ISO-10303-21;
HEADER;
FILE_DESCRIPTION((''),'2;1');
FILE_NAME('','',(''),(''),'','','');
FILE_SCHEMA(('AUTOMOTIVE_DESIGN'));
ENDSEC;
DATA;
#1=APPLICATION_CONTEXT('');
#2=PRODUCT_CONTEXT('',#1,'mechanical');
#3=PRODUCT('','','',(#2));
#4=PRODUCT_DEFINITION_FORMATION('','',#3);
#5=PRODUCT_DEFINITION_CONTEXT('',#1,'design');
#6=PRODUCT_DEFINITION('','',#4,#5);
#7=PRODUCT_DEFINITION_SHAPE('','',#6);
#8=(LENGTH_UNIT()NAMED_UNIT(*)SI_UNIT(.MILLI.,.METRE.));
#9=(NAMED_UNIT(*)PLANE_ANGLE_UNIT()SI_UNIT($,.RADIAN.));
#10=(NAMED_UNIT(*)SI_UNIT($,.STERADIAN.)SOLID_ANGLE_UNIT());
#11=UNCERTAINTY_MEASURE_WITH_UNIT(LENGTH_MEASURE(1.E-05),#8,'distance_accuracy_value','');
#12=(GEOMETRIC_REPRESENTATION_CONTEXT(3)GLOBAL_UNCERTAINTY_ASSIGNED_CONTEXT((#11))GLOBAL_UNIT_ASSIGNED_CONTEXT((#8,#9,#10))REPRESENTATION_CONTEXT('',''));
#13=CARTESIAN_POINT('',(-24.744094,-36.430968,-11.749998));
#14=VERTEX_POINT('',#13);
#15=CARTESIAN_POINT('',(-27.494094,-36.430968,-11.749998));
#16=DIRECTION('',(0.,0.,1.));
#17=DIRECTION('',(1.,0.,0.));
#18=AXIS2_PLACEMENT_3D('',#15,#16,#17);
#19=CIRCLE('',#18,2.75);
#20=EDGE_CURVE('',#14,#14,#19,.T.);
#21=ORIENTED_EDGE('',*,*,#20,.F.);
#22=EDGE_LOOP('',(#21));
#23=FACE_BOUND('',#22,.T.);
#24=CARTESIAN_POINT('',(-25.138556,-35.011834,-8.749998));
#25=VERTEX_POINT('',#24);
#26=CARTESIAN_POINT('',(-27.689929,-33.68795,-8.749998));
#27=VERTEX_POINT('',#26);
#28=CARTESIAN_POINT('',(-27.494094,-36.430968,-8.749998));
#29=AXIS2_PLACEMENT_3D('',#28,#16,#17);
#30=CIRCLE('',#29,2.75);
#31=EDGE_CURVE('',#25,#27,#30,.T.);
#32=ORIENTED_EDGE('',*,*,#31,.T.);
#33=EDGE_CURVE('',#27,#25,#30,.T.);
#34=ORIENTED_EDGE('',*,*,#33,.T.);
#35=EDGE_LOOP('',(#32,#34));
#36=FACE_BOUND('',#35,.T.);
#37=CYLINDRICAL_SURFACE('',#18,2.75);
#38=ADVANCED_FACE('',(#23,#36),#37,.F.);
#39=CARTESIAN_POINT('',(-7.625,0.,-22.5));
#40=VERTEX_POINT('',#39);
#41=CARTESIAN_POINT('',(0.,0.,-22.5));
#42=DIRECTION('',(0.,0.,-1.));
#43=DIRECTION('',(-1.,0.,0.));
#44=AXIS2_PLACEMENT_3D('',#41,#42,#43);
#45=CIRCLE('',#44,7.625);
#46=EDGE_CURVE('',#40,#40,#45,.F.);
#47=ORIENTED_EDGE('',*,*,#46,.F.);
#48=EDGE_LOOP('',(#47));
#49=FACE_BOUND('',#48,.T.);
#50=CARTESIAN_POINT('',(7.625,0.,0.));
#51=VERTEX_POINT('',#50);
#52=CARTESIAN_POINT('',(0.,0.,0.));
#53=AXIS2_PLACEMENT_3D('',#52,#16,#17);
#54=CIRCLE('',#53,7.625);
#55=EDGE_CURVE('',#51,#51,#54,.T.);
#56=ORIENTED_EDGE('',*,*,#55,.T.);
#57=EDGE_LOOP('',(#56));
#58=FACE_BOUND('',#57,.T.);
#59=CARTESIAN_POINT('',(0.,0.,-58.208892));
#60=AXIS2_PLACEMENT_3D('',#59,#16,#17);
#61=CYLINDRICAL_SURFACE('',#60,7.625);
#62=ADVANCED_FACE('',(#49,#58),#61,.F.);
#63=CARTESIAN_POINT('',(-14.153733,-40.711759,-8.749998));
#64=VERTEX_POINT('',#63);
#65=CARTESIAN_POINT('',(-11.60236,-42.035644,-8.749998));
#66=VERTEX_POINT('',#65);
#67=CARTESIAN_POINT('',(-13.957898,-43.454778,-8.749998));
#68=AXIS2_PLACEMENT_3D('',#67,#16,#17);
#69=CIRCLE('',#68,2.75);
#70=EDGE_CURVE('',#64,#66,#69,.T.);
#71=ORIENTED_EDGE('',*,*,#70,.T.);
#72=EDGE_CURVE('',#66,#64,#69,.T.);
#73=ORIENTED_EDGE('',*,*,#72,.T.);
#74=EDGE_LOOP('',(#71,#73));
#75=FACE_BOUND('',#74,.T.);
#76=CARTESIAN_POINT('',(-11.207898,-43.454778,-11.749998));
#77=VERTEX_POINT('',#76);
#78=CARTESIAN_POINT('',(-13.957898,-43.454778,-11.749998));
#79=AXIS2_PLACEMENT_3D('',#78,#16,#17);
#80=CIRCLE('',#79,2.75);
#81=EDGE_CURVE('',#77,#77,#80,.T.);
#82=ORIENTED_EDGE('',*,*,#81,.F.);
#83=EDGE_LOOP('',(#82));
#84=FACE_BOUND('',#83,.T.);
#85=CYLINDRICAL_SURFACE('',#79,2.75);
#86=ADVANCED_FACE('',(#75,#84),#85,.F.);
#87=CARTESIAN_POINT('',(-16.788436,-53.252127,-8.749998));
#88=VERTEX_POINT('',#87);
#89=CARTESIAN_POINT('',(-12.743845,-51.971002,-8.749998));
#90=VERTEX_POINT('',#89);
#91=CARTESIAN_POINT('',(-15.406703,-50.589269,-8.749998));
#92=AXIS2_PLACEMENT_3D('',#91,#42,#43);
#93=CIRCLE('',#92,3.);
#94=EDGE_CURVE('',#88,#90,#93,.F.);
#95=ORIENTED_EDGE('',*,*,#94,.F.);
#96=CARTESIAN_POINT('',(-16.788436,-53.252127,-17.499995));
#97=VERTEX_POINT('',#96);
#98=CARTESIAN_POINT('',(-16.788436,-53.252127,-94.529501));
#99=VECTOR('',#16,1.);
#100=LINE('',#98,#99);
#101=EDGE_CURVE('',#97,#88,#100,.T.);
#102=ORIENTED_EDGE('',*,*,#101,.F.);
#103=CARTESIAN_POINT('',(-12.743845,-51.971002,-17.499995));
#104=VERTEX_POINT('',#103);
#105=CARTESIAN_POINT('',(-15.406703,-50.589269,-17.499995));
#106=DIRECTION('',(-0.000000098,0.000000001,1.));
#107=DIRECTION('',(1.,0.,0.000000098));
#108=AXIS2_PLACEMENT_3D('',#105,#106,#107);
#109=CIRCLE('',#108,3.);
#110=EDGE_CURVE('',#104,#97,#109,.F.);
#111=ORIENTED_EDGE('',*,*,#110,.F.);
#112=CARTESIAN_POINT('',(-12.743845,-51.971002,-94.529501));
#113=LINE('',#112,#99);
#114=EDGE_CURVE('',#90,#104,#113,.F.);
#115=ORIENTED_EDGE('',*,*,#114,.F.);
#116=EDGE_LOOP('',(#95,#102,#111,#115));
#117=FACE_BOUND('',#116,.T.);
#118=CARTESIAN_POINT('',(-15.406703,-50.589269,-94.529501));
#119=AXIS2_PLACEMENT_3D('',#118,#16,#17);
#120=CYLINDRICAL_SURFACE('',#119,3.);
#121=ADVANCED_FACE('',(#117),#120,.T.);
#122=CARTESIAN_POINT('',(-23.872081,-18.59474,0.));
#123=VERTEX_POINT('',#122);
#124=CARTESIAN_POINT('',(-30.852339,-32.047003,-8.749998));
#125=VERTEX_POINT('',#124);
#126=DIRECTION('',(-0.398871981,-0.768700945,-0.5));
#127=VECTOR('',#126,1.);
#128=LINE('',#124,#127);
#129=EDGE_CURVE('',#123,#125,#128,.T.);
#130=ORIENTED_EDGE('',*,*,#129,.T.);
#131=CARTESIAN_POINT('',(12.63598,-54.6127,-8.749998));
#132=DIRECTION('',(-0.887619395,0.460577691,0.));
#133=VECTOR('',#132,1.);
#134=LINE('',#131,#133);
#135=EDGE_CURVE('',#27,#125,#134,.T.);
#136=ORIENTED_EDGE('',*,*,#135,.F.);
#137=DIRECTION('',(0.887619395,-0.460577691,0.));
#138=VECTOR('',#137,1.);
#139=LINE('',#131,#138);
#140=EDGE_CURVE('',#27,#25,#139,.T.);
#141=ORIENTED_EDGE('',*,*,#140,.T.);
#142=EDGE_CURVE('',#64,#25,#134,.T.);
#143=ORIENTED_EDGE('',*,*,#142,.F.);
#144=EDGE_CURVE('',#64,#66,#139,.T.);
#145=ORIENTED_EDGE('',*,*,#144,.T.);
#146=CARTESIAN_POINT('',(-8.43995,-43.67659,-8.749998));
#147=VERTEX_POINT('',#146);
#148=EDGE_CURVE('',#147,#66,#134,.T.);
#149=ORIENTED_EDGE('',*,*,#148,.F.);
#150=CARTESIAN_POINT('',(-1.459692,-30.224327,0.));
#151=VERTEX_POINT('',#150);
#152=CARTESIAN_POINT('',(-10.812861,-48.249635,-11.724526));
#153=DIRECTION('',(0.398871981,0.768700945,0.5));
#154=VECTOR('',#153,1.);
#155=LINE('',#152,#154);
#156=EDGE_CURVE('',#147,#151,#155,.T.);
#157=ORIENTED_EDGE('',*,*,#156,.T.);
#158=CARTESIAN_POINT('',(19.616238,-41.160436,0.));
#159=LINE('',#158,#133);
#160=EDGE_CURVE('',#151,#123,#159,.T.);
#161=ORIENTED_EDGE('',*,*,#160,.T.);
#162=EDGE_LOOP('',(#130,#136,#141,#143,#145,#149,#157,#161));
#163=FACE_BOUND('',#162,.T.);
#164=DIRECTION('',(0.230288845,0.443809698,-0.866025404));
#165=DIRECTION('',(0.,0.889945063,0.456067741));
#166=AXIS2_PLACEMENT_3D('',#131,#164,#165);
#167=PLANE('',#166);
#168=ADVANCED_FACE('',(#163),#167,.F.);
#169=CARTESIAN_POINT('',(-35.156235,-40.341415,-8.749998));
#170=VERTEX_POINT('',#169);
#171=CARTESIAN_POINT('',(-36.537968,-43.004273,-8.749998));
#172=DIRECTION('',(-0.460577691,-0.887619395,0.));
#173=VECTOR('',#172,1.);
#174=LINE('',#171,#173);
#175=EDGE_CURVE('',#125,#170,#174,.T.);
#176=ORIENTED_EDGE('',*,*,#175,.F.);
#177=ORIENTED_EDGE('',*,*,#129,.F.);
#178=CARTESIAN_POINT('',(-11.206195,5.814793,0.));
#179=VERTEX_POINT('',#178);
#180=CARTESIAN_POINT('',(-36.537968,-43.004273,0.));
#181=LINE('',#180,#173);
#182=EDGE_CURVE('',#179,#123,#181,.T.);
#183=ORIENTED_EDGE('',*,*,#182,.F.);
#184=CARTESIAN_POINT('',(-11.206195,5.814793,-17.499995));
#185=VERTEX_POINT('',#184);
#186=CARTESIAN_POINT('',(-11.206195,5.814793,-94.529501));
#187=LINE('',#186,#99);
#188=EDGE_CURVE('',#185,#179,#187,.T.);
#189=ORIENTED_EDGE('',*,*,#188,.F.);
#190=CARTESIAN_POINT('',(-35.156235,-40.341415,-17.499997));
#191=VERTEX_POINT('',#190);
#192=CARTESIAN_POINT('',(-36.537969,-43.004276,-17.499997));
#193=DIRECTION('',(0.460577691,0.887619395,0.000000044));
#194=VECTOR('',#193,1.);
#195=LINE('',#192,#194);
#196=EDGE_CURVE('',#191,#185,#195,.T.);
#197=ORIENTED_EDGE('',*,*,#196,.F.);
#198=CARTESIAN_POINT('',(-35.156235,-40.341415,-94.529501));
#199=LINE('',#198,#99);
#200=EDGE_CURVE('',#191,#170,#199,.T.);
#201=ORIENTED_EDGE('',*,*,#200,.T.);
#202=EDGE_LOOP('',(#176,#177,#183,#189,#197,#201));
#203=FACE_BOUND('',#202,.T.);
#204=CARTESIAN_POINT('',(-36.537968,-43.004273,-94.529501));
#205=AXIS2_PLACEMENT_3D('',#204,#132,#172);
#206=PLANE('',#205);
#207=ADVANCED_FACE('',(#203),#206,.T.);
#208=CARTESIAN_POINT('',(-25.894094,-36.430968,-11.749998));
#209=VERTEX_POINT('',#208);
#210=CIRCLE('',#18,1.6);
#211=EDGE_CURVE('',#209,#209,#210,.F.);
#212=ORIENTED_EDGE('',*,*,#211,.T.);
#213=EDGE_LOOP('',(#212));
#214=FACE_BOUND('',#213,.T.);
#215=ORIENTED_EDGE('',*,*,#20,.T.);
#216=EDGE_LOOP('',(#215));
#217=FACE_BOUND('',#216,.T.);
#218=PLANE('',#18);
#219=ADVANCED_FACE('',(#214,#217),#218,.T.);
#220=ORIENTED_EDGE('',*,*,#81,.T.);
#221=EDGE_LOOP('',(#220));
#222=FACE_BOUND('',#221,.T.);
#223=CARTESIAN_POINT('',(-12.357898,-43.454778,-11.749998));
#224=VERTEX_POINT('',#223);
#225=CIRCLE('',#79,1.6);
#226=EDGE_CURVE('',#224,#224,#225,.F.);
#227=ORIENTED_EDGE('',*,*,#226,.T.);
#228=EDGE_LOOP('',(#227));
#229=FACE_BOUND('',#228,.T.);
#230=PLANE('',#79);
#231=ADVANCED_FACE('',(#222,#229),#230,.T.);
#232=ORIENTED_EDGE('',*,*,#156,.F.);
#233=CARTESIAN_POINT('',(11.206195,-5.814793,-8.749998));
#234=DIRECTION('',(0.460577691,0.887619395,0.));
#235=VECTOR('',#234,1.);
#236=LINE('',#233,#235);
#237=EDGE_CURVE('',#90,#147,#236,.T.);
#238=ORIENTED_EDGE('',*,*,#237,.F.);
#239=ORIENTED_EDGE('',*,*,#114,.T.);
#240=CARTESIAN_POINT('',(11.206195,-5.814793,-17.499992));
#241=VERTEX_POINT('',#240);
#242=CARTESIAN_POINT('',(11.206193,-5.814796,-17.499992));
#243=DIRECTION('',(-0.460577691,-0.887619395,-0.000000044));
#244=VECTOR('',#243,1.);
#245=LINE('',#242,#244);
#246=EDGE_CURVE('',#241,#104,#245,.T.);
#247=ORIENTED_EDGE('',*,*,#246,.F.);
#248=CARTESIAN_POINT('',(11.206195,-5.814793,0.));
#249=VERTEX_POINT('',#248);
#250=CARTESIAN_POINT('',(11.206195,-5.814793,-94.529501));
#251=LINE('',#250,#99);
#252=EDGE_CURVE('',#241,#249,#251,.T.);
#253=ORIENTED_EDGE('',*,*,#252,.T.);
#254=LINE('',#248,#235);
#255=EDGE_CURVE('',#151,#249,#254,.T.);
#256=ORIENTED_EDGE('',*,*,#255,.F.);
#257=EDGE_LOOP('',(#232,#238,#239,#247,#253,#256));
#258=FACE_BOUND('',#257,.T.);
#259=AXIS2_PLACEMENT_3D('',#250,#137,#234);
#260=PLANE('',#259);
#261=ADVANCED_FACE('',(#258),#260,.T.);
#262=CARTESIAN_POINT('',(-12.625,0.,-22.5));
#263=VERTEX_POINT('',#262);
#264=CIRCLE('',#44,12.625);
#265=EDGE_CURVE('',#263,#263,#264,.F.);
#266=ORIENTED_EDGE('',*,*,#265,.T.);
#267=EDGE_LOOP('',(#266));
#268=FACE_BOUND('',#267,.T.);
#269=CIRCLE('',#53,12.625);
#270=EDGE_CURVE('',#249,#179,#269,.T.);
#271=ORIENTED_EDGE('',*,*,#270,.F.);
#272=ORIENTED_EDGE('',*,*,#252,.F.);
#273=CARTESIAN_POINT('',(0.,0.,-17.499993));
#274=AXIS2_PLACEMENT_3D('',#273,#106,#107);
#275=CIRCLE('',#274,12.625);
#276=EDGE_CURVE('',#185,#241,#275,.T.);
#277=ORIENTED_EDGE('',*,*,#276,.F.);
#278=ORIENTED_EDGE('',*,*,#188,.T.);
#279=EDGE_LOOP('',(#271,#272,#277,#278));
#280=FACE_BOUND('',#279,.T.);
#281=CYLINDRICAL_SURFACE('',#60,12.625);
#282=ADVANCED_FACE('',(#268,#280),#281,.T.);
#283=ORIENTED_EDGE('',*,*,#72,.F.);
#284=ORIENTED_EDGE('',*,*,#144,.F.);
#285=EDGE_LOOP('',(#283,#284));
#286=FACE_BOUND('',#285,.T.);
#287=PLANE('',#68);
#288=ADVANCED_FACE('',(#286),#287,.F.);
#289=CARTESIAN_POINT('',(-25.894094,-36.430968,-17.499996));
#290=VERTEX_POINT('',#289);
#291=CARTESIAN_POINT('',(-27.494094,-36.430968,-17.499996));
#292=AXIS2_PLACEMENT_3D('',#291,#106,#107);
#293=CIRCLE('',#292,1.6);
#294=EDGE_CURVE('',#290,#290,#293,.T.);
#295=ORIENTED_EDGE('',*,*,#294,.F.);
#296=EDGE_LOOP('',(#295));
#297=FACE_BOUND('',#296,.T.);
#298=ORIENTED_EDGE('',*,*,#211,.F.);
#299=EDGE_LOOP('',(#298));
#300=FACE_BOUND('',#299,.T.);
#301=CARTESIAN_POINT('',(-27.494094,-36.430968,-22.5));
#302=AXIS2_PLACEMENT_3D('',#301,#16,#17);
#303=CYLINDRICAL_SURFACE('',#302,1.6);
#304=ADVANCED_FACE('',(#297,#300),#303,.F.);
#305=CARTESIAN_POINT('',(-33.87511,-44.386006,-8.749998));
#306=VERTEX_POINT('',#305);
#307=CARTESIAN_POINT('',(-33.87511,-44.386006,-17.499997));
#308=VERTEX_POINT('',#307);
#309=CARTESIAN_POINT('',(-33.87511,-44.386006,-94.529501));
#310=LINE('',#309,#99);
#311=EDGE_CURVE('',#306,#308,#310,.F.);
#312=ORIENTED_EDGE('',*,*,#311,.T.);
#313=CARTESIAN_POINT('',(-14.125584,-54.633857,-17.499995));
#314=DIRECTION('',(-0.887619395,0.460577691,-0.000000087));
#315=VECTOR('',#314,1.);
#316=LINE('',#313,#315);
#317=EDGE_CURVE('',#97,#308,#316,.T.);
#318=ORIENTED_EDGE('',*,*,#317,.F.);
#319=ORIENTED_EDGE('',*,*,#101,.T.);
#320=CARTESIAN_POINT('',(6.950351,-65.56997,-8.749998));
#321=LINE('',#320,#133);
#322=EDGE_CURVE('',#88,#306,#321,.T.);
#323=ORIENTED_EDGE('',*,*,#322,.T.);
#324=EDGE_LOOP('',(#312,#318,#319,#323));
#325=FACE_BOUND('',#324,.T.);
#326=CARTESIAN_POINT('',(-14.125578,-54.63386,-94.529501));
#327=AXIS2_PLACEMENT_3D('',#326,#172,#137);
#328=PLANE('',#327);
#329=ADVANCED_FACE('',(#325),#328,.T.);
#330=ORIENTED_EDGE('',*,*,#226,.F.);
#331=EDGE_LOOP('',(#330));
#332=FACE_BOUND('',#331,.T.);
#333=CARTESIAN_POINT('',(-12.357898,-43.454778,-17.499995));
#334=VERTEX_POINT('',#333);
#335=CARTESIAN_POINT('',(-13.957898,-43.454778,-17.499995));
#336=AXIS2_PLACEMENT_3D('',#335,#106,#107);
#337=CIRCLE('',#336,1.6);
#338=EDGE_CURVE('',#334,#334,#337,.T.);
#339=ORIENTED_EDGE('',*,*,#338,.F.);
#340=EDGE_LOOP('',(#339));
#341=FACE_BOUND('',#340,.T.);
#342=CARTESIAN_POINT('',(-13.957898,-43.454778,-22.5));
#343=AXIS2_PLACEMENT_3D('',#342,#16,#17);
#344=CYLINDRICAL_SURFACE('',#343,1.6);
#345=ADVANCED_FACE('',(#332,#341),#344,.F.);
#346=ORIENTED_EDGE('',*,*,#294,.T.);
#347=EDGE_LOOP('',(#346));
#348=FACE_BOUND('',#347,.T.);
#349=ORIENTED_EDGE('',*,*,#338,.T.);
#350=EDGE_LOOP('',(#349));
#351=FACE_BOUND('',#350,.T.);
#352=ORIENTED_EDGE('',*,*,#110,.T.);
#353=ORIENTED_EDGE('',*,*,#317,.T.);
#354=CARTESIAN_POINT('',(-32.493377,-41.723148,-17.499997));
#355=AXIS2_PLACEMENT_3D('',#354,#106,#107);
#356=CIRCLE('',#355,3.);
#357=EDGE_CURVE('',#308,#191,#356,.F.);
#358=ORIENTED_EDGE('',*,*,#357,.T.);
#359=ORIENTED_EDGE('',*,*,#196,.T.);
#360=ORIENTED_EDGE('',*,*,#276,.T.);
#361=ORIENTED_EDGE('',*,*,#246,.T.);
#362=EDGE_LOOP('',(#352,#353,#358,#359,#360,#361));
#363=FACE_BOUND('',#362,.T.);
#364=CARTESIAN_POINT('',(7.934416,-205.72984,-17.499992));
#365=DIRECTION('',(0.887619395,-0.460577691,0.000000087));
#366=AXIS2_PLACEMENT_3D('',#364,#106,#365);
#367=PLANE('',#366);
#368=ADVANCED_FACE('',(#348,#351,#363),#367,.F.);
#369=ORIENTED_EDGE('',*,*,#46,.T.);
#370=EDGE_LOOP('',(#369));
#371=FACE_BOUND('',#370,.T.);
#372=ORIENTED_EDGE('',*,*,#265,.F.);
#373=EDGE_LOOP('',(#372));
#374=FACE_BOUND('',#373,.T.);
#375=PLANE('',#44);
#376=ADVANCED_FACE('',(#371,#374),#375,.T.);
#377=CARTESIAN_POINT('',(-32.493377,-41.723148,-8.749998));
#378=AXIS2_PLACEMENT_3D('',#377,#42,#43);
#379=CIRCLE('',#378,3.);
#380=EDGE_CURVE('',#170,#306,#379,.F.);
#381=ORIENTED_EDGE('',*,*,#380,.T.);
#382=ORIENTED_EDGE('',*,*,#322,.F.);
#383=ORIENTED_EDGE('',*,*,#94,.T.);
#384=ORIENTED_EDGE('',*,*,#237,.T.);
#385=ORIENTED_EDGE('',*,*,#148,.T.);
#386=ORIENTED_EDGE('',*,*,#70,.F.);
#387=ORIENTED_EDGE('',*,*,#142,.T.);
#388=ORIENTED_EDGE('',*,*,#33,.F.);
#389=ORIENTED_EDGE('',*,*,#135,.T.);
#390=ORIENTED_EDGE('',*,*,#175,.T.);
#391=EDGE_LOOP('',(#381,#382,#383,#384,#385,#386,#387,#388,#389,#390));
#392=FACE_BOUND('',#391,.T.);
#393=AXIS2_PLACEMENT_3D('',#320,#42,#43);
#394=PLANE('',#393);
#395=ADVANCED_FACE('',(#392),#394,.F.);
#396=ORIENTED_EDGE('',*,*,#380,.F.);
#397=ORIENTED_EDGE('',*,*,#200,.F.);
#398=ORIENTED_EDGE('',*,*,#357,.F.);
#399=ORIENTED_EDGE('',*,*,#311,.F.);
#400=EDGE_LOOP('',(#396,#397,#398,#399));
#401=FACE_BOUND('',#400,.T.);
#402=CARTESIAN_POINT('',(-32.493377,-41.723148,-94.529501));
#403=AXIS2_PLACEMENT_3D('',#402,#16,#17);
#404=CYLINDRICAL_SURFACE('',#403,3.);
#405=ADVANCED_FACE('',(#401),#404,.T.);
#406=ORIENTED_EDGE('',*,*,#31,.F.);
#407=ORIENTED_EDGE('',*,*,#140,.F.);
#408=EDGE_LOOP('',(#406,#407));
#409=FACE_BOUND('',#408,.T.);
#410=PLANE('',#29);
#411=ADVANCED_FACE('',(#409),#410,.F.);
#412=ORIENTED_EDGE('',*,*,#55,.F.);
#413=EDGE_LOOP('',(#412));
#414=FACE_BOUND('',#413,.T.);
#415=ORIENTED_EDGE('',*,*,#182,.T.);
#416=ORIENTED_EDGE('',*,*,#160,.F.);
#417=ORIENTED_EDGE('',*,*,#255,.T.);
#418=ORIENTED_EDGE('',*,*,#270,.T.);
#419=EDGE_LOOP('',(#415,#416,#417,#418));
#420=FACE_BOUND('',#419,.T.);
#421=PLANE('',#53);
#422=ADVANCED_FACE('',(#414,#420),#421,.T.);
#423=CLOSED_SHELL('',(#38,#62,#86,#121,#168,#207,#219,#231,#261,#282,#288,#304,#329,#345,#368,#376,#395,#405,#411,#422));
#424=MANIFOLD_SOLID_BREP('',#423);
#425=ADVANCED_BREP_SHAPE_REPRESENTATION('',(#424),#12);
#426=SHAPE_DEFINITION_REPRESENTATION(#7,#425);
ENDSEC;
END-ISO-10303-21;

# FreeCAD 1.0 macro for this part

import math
import FreeCAD as App
import Part
import Sketcher
from FreeCAD import Vector
Q = App.Units.Quantity


def edges_at(feature, points):
    """Names of the edges that pass closest to the given points."""
    edges = feature.Shape.Edges
    near = lambda p: min(range(len(edges)), key=lambda i: edges[i].distToShape(Part.Vertex(*p))[0])
    return sorted({f"Edge{near(p) + 1}" for p in points})

doc = App.newDocument("Part")
body = doc.addObject("PartDesign::Body", "Body")

sketch1 = doc.addObject("Sketcher::SketchObject", "Sketch")
body.addObject(sketch1)
sketch1.AttachmentSupport = (doc.XY_Plane, [""])
sketch1.MapMode = "FlatFace"
sketch1.addGeometry(Part.Circle(Vector(0, 0, 0), Vector(0, 0, 1), 13), False)
sketch1.addGeometry(Part.Circle(Vector(0, 0, 0), Vector(0, 0, 1), 8), False)
sketch1.addConstraint(Sketcher.Constraint("Coincident", 0, 3, -1, 1))
sketch1.addConstraint(Sketcher.Constraint("Coincident", 1, 3, -1, 1))
sketch1.addConstraint(Sketcher.Constraint("Diameter", 0, Q("25.25 mm")))
sketch1.addConstraint(Sketcher.Constraint("Diameter", 1, Q("15.25 mm")))
pad1 = doc.addObject("PartDesign::Pad", "Pad")
body.addObject(pad1)
pad1.Profile = sketch1
pad1.Length = 22.5
pad1.Reversed = True

sketch2 = doc.addObject("Sketcher::SketchObject", "Sketch001")
body.addObject(sketch2)
sketch2.AttachmentSupport = (doc.XY_Plane, [""])
sketch2.MapMode = "FlatFace"
sketch2.addGeometry(Part.LineSegment(Vector(-14, -55, 0), Vector(11, -6, 0)), False)
sketch2.addGeometry(Part.ArcOfCircle(Part.Circle(Vector(0, 0, 0), Vector(0, 0, 1), 13), math.radians(153), math.radians(333)), False)
sketch2.addGeometry(Part.LineSegment(Vector(-11, 6, 0), Vector(-37, -43, 0)), False)
sketch2.addGeometry(Part.LineSegment(Vector(-37, -43, 0), Vector(-14, -55, 0)), False)
sketch2.addConstraint(Sketcher.Constraint("Tangent", 0, 2, 1, 2))
sketch2.addConstraint(Sketcher.Constraint("Tangent", 1, 1, 2, 1))
sketch2.addConstraint(Sketcher.Constraint("Coincident", 2, 2, 3, 1))
sketch2.addConstraint(Sketcher.Constraint("Coincident", 3, 2, 0, 1))
sketch2.addConstraint(Sketcher.Constraint("Coincident", 1, 3, -1, 1))
sketch2.addConstraint(Sketcher.Constraint("Parallel", 0, 2))
sketch2.addConstraint(Sketcher.Constraint("Perpendicular", 2, 3))
sketch2.addConstraint(Sketcher.Constraint("Distance", 0, Q("55 mm")))
sketch2.addConstraint(Sketcher.Constraint("Radius", 1, Q("12.625 mm")))
sketch2.addConstraint(Sketcher.Constraint("DistanceX", 3, 2, -1, 1, Q("14.125578 mm")))
pad2 = doc.addObject("PartDesign::Pad", "Pad001")
body.addObject(pad2)
pad2.Profile = sketch2
pad2.Length = 17.499995
pad2.Reversed = True

sketch3 = doc.addObject("Sketcher::SketchObject", "Sketch002")
body.addObject(sketch3)
sketch3.Placement = App.Placement(Vector(-11.206195, 5.814793, 0), App.Rotation(Vector(0, 0, 1), Vector(0.460577691, 0.887619395, 0), Vector(-0.887619395, 0.460577691, 0), "ZXY"))
sketch3.addGeometry(Part.LineSegment(Vector(-9, -43, 0), Vector(-9, -55, 0)), False)
sketch3.addGeometry(Part.LineSegment(Vector(-9, -55, 0), Vector(0, -55, 0)), False)
sketch3.addGeometry(Part.LineSegment(Vector(0, -55, 0), Vector(0, -27, 0)), False)
sketch3.addGeometry(Part.LineSegment(Vector(0, -27, 0), Vector(-9, -43, 0)), False)
sketch3.addConstraint(Sketcher.Constraint("Coincident", 0, 2, 1, 1))
sketch3.addConstraint(Sketcher.Constraint("Coincident", 1, 2, 2, 1))
sketch3.addConstraint(Sketcher.Constraint("Coincident", 2, 2, 3, 1))
sketch3.addConstraint(Sketcher.Constraint("Coincident", 3, 2, 0, 1))
sketch3.addConstraint(Sketcher.Constraint("Vertical", 0))
sketch3.addConstraint(Sketcher.Constraint("Horizontal", 1))
sketch3.addConstraint(Sketcher.Constraint("Vertical", 2))
sketch3.addConstraint(Sketcher.Constraint("PointOnObject", 1, 2, -2))
sketch3.addConstraint(Sketcher.Constraint("Angle", 3, Q("-120 deg")))
sketch3.addConstraint(Sketcher.Constraint("DistanceY", 2, 1, 2, 2, Q("27.5 mm")))
sketch3.addConstraint(Sketcher.Constraint("DistanceY", 0, 2, -1, 1, Q("55 mm")))
sketch3.addConstraint(Sketcher.Constraint("DistanceY", 0, 2, 0, 1, Q("12.344559 mm")))
pocket1 = doc.addObject("PartDesign::Pocket", "Pocket")
body.addObject(pocket1)
pocket1.Profile = sketch3
pocket1.Type = "ThroughAll"
doc.recompute()

fillet = doc.addObject("PartDesign::Fillet", "Fillet")
body.addObject(fillet)
fillet.Base = (pocket1, edges_at(pocket1, [(-14.126, -54.634, -13.125), (-36.538, -43.004, -13.125)]))
fillet.Radius = 3

sketch4 = doc.addObject("Sketcher::SketchObject", "Sketch003")
body.addObject(sketch4)
sketch4.AttachmentSupport = (doc.XY_Plane, [""])
sketch4.MapMode = "FlatFace"
sketch4.AttachmentOffset = App.Placement(Vector(0, 0, -8.749998), App.Rotation())
sketch4.addGeometry(Part.Circle(Vector(-14, -43.5, 0), Vector(0, 0, 1), 1.6), False)
sketch4.addGeometry(Part.Circle(Vector(-27.5, -36.4, 0), Vector(0, 0, 1), 1.6), False)
sketch4.addConstraint(Sketcher.Constraint("Equal", 0, 1))
sketch4.addConstraint(Sketcher.Constraint("Diameter", 0, Q("3.2 mm")))
sketch4.addConstraint(Sketcher.Constraint("DistanceX", 0, 3, -1, 1, Q("13.957898 mm")))
sketch4.addConstraint(Sketcher.Constraint("DistanceY", 0, 3, 1, 3, Q("7.02381 mm")))
sketch4.addConstraint(Sketcher.Constraint("DistanceY", 0, 3, -1, 1, Q("43.454778 mm")))
sketch4.addConstraint(Sketcher.Constraint("DistanceX", 1, 3, -1, 1, Q("27.494094 mm")))
pocket2 = doc.addObject("PartDesign::Pocket", "Pocket001")
body.addObject(pocket2)
pocket2.Profile = sketch4
pocket2.Type = "ThroughAll"

sketch5 = doc.addObject("Sketcher::SketchObject", "Sketch004")
body.addObject(sketch5)
sketch5.AttachmentSupport = (doc.XY_Plane, [""])
sketch5.MapMode = "FlatFace"
sketch5.AttachmentOffset = App.Placement(Vector(0, 0, -8.749998), App.Rotation())
sketch5.addGeometry(Part.Circle(Vector(-14, -43.5, 0), Vector(0, 0, 1), 2.8), False)
sketch5.addGeometry(Part.Circle(Vector(-27.5, -36.4, 0), Vector(0, 0, 1), 2.8), False)
sketch5.addConstraint(Sketcher.Constraint("Equal", 0, 1))
sketch5.addConstraint(Sketcher.Constraint("Diameter", 0, Q("5.5 mm")))
sketch5.addConstraint(Sketcher.Constraint("DistanceX", 0, 3, -1, 1, Q("13.957898 mm")))
sketch5.addConstraint(Sketcher.Constraint("DistanceY", 0, 3, 1, 3, Q("7.02381 mm")))
sketch5.addConstraint(Sketcher.Constraint("DistanceY", 0, 3, -1, 1, Q("43.454778 mm")))
sketch5.addConstraint(Sketcher.Constraint("DistanceX", 1, 3, -1, 1, Q("27.494094 mm")))
pocket3 = doc.addObject("PartDesign::Pocket", "Pocket002")
body.addObject(pocket3)
pocket3.Profile = sketch5
pocket3.Length = 3

doc.recompute()
